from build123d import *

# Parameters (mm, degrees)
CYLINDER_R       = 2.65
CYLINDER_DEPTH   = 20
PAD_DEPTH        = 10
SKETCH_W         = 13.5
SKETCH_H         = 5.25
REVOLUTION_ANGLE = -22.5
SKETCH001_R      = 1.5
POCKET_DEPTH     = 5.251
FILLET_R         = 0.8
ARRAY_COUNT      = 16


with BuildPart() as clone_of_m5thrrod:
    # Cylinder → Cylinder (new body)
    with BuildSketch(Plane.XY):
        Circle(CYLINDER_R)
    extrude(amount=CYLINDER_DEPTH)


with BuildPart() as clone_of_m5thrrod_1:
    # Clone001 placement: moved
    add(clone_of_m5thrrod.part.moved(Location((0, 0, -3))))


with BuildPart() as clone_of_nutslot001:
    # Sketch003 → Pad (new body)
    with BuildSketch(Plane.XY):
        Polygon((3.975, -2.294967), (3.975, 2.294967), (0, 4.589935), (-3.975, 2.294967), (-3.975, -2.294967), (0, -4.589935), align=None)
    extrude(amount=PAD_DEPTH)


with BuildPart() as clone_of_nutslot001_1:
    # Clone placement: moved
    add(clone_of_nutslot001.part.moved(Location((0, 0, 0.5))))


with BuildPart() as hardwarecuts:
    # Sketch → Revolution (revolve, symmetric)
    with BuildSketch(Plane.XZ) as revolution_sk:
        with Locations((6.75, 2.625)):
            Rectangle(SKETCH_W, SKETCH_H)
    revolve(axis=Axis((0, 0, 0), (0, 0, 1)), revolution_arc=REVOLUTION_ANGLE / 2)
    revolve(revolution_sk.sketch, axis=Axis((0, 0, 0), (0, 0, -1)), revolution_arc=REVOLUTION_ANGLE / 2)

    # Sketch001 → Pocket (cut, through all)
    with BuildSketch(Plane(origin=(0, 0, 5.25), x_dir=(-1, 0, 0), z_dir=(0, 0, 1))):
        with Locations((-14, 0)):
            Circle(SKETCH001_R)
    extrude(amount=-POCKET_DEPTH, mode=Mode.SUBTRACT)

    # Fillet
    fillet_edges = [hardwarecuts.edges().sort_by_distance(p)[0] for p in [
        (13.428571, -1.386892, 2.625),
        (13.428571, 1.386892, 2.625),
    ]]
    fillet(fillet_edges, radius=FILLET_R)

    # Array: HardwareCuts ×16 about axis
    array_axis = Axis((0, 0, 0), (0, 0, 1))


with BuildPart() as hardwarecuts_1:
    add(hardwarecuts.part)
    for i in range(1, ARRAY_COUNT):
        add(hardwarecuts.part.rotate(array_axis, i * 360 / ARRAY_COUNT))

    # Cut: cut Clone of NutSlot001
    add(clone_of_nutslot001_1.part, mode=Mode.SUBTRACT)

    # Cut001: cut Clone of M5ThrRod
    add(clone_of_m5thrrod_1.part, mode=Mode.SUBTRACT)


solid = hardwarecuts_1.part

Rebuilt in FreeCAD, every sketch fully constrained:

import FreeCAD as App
import Part
import Sketcher
from FreeCAD import Vector
Q = App.Units.Quantity


def edges_at(feature, points):
    """Names of the edges that pass closest to the given points."""
    edges = feature.Shape.Edges
    near = lambda p: min(range(len(edges)), key=lambda i: edges[i].distToShape(Part.Vertex(*p))[0])
    return sorted({f"Edge{near(p) + 1}" for p in points})

doc = App.newDocument("Part")
body = doc.addObject("PartDesign::Body", "Body")

sketch1 = body.newObject("Sketcher::SketchObject", "Sketch")
sketch1.AttachmentSupport = (doc.getObject("XY_Plane"), [""])
sketch1.MapMode = "FlatFace"
sketch1.addGeometry(Part.Circle(Vector(0, 0, 0), Vector(0, 0, 1), 2.6), False)
sketch1.addConstraint([
    Sketcher.Constraint("Coincident", 0, 3, -1, 1),
    Sketcher.Constraint("Diameter", 0, Q("5.3 mm")),
])
pad1 = body.newObject("PartDesign::Pad", "Pad")
pad1.Profile = sketch1
pad1.Length = 20
body2 = doc.addObject("PartDesign::Body", "Body001")
doc.recompute()

body.Placement = App.Placement(Vector(0, 0, -3), App.Rotation(Vector(0, 0, 1), 0))
boolean = body2.newObject("PartDesign::Boolean", "Boolean")
boolean.Type = "Fuse"
boolean.addObjects([body])
body3 = doc.addObject("PartDesign::Body", "Body002")

sketch2 = body3.newObject("Sketcher::SketchObject", "Sketch001")
sketch2.AttachmentSupport = (doc.getObject("XY_Plane002"), [""])
sketch2.MapMode = "FlatFace"
sketch2.addGeometry([
    Part.LineSegment(Vector(4, -2.3, 0), Vector(4, 2.3, 0)),
    Part.LineSegment(Vector(4, 2.3, 0), Vector(0, 4.6, 0)),
    Part.LineSegment(Vector(0, 4.6, 0), Vector(-4, 2.3, 0)),
    Part.LineSegment(Vector(-4, 2.3, 0), Vector(-4, -2.3, 0)),
    Part.LineSegment(Vector(-4, -2.3, 0), Vector(0, -4.6, 0)),
    Part.LineSegment(Vector(0, -4.6, 0), Vector(4, -2.3, 0)),
], False)
sketch2.addConstraint([
    Sketcher.Constraint("Coincident", 0, 2, 1, 1),
    Sketcher.Constraint("Coincident", 1, 2, 2, 1),
    Sketcher.Constraint("Coincident", 2, 2, 3, 1),
    Sketcher.Constraint("Coincident", 3, 2, 4, 1),
    Sketcher.Constraint("Coincident", 4, 2, 5, 1),
    Sketcher.Constraint("Coincident", 5, 2, 0, 1),
    Sketcher.Constraint("Vertical", 0),
    Sketcher.Constraint("Vertical", 3),
    Sketcher.Constraint("Symmetric", 0, 2, 3, 2, -1, 1),
    Sketcher.Constraint("Symmetric", 1, 2, 4, 2, -1, 1),
    Sketcher.Constraint("PointOnObject", 1, 2, -2),
    Sketcher.Constraint("Parallel", 2, 5),
    Sketcher.Constraint("Horizontal", 0, 2, 2, 2),
    Sketcher.Constraint("Angle", 1, Q("149.999993 deg")),
    Sketcher.Constraint("DistanceX", 2, 2, 0, 2, Q("7.95 mm")),
    Sketcher.Constraint("DistanceY", 0, 1, 0, 2, Q("4.589934 mm")),
])
pad2 = body3.newObject("PartDesign::Pad", "Pad001")
pad2.Profile = sketch2
pad2.Length = 10
body4 = doc.addObject("PartDesign::Body", "Body003")
doc.recompute()

body3.Placement = App.Placement(Vector(0, 0, 0.5), App.Rotation(Vector(0, 0, 1), 0))
boolean2 = body4.newObject("PartDesign::Boolean", "Boolean001")
boolean2.Type = "Fuse"
boolean2.addObjects([body3])
body5 = doc.addObject("PartDesign::Body", "Body004")

sketch3 = body5.newObject("Sketcher::SketchObject", "Sketch002")
sketch3.AttachmentSupport = (doc.getObject("XZ_Plane004"), [""])
sketch3.MapMode = "FlatFace"
sketch3.addGeometry([
    Part.LineSegment(Vector(0, 5, 0), Vector(0, 0, 0)),
    Part.LineSegment(Vector(0, 0, 0), Vector(14, 0, 0)),
    Part.LineSegment(Vector(14, 0, 0), Vector(14, 5, 0)),
    Part.LineSegment(Vector(14, 5, 0), Vector(0, 5, 0)),
], False)
sketch3.addConstraint([
    Sketcher.Constraint("Coincident", 0, 2, 1, 1),
    Sketcher.Constraint("Coincident", 1, 2, 2, 1),
    Sketcher.Constraint("Coincident", 2, 2, 3, 1),
    Sketcher.Constraint("Coincident", 3, 2, 0, 1),
    Sketcher.Constraint("Vertical", 0),
    Sketcher.Constraint("Horizontal", 1),
    Sketcher.Constraint("Vertical", 2),
    Sketcher.Constraint("Horizontal", 3),
    Sketcher.Constraint("Coincident", 0, 2, -1, 1),
    Sketcher.Constraint("DistanceX", 1, 1, 1, 2, Q("13.5 mm")),
    Sketcher.Constraint("DistanceY", 0, 2, 0, 1, Q("5.25 mm")),
])
revolution = body5.newObject("PartDesign::Revolution", "Revolution")
revolution.Profile = sketch3
revolution.ReferenceAxis = (sketch3, ["V_Axis"])
revolution.Angle = 11.25
revolution.Reversed = True

sketch4 = body5.newObject("Sketcher::SketchObject", "Sketch003")
sketch4.AttachmentSupport = (doc.getObject("XZ_Plane004"), [""])
sketch4.MapMode = "FlatFace"
sketch4.addGeometry([
    Part.LineSegment(Vector(0, 5, 0), Vector(0, 0, 0)),
    Part.LineSegment(Vector(0, 0, 0), Vector(14, 0, 0)),
    Part.LineSegment(Vector(14, 0, 0), Vector(14, 5, 0)),
    Part.LineSegment(Vector(14, 5, 0), Vector(0, 5, 0)),
], False)
sketch4.addConstraint([
    Sketcher.Constraint("Coincident", 0, 2, 1, 1),
    Sketcher.Constraint("Coincident", 1, 2, 2, 1),
    Sketcher.Constraint("Coincident", 2, 2, 3, 1),
    Sketcher.Constraint("Coincident", 3, 2, 0, 1),
    Sketcher.Constraint("Vertical", 0),
    Sketcher.Constraint("Horizontal", 1),
    Sketcher.Constraint("Vertical", 2),
    Sketcher.Constraint("Horizontal", 3),
    Sketcher.Constraint("Coincident", 0, 2, -1, 1),
    Sketcher.Constraint("DistanceX", 1, 1, 1, 2, Q("13.5 mm")),
    Sketcher.Constraint("DistanceY", 0, 2, 0, 1, Q("5.25 mm")),
])
revolution2 = body5.newObject("PartDesign::Revolution", "Revolution001")
revolution2.Profile = sketch4
revolution2.ReferenceAxis = (sketch4, ["V_Axis"])
revolution2.Angle = 11.25

sketch5 = body5.newObject("Sketcher::SketchObject", "Sketch004")
sketch5.AttachmentSupport = (doc.getObject("XY_Plane004"), [""])
sketch5.MapMode = "FlatFace"
sketch5.AttachmentOffset = App.Placement(Vector(0, 0, 5.25), App.Rotation())
sketch5.addGeometry(Part.Circle(Vector(14, 0, 0), Vector(0, 0, 1), 1.5), False)
sketch5.addConstraint([
    Sketcher.Constraint("PointOnObject", 0, 3, -1),
    Sketcher.Constraint("Diameter", 0, Q("3 mm")),
    Sketcher.Constraint("DistanceX", -1, 1, 0, 3, Q("14 mm")),
])
pocket1 = body5.newObject("PartDesign::Pocket", "Pocket")
pocket1.Profile = sketch5
pocket1.Type = "ThroughAll"
doc.recompute()

fillet = body5.newObject("PartDesign::Fillet", "Fillet")
fillet.Base = (pocket1, edges_at(pocket1, [(13.429, -1.387, 2.625), (13.429, 1.387, 2.625)]))
fillet.Radius = 0.8
body6 = doc.addObject("PartDesign::Body", "Body005")
doc.recompute()

body6.BaseFeature = body5
doc.recompute()

body7 = doc.addObject("PartDesign::Body", "Body006")
body7.BaseFeature = body5
body7.Placement = App.Placement(Vector(0, 0, 0), App.Rotation(Vector(0, 0, 1), 22.5))
boolean3 = body6.newObject("PartDesign::Boolean", "Boolean002")
boolean3.Type = "Fuse"
boolean3.addObjects([body7])
doc.recompute()

body8 = doc.addObject("PartDesign::Body", "Body007")
body8.BaseFeature = body5
body8.Placement = App.Placement(Vector(0, 0, 0), App.Rotation(Vector(0, 0, 1), 45))
boolean4 = body6.newObject("PartDesign::Boolean", "Boolean003")
boolean4.Type = "Fuse"
boolean4.addObjects([body8])
doc.recompute()

body9 = doc.addObject("PartDesign::Body", "Body008")
body9.BaseFeature = body5
body9.Placement = App.Placement(Vector(0, 0, 0), App.Rotation(Vector(0, 0, 1), 67.5))
boolean5 = body6.newObject("PartDesign::Boolean", "Boolean004")
boolean5.Type = "Fuse"
boolean5.addObjects([body9])
doc.recompute()

body10 = doc.addObject("PartDesign::Body", "Body009")
body10.BaseFeature = body5
body10.Placement = App.Placement(Vector(0, 0, 0), App.Rotation(Vector(0, 0, 1), 90))
boolean6 = body6.newObject("PartDesign::Boolean", "Boolean005")
boolean6.Type = "Fuse"
boolean6.addObjects([body10])
doc.recompute()

body11 = doc.addObject("PartDesign::Body", "Body010")
body11.BaseFeature = body5
body11.Placement = App.Placement(Vector(0, 0, 0), App.Rotation(Vector(0, 0, 1), 112.5))
boolean7 = body6.newObject("PartDesign::Boolean", "Boolean006")
boolean7.Type = "Fuse"
boolean7.addObjects([body11])
doc.recompute()

body12 = doc.addObject("PartDesign::Body", "Body011")
body12.BaseFeature = body5
body12.Placement = App.Placement(Vector(0, 0, 0), App.Rotation(Vector(0, 0, 1), 135))
boolean8 = body6.newObject("PartDesign::Boolean", "Boolean007")
boolean8.Type = "Fuse"
boolean8.addObjects([body12])
doc.recompute()

body13 = doc.addObject("PartDesign::Body", "Body012")
body13.BaseFeature = body5
body13.Placement = App.Placement(Vector(0, 0, 0), App.Rotation(Vector(0, 0, 1), 157.5))
boolean9 = body6.newObject("PartDesign::Boolean", "Boolean008")
boolean9.Type = "Fuse"
boolean9.addObjects([body13])
doc.recompute()

body14 = doc.addObject("PartDesign::Body", "Body013")
body14.BaseFeature = body5
body14.Placement = App.Placement(Vector(0, 0, 0), App.Rotation(Vector(0, 0, 1), 180))
boolean10 = body6.newObject("PartDesign::Boolean", "Boolean009")
boolean10.Type = "Fuse"
boolean10.addObjects([body14])
doc.recompute()

body15 = doc.addObject("PartDesign::Body", "Body014")
body15.BaseFeature = body5
body15.Placement = App.Placement(Vector(0, 0, 0), App.Rotation(Vector(0, 0, 1), 202.5))
boolean11 = body6.newObject("PartDesign::Boolean", "Boolean010")
boolean11.Type = "Fuse"
boolean11.addObjects([body15])
doc.recompute()

body16 = doc.addObject("PartDesign::Body", "Body015")
body16.BaseFeature = body5
body16.Placement = App.Placement(Vector(0, 0, 0), App.Rotation(Vector(0, 0, 1), 225))
boolean12 = body6.newObject("PartDesign::Boolean", "Boolean011")
boolean12.Type = "Fuse"
boolean12.addObjects([body16])
doc.recompute()

body17 = doc.addObject("PartDesign::Body", "Body016")
body17.BaseFeature = body5
body17.Placement = App.Placement(Vector(0, 0, 0), App.Rotation(Vector(0, 0, 1), 247.5))
boolean13 = body6.newObject("PartDesign::Boolean", "Boolean012")
boolean13.Type = "Fuse"
boolean13.addObjects([body17])
doc.recompute()

body18 = doc.addObject("PartDesign::Body", "Body017")
body18.BaseFeature = body5
body18.Placement = App.Placement(Vector(0, 0, 0), App.Rotation(Vector(0, 0, 1), 270))
boolean14 = body6.newObject("PartDesign::Boolean", "Boolean013")
boolean14.Type = "Fuse"
boolean14.addObjects([body18])
doc.recompute()

body19 = doc.addObject("PartDesign::Body", "Body018")
body19.BaseFeature = body5
body19.Placement = App.Placement(Vector(0, 0, 0), App.Rotation(Vector(0, 0, 1), 292.5))
boolean15 = body6.newObject("PartDesign::Boolean", "Boolean014")
boolean15.Type = "Fuse"
boolean15.addObjects([body19])
doc.recompute()

body20 = doc.addObject("PartDesign::Body", "Body019")
body20.BaseFeature = body5
body20.Placement = App.Placement(Vector(0, 0, 0), App.Rotation(Vector(0, 0, 1), 315))
boolean16 = body6.newObject("PartDesign::Boolean", "Boolean015")
boolean16.Type = "Fuse"
boolean16.addObjects([body20])
doc.recompute()

body5.Placement = App.Placement(Vector(0, 0, 0), App.Rotation(Vector(0, 0, 1), 337.5))
boolean17 = body6.newObject("PartDesign::Boolean", "Boolean016")
boolean17.Type = "Fuse"
boolean17.addObjects([body5])
doc.recompute()

boolean18 = body6.newObject("PartDesign::Boolean", "Boolean017")
boolean18.Type = "Cut"
boolean18.addObjects([body4])
doc.recompute()

boolean19 = body6.newObject("PartDesign::Boolean", "Boolean018")
boolean19.Type = "Cut"
boolean19.addObjects([body2])

doc.recompute()
